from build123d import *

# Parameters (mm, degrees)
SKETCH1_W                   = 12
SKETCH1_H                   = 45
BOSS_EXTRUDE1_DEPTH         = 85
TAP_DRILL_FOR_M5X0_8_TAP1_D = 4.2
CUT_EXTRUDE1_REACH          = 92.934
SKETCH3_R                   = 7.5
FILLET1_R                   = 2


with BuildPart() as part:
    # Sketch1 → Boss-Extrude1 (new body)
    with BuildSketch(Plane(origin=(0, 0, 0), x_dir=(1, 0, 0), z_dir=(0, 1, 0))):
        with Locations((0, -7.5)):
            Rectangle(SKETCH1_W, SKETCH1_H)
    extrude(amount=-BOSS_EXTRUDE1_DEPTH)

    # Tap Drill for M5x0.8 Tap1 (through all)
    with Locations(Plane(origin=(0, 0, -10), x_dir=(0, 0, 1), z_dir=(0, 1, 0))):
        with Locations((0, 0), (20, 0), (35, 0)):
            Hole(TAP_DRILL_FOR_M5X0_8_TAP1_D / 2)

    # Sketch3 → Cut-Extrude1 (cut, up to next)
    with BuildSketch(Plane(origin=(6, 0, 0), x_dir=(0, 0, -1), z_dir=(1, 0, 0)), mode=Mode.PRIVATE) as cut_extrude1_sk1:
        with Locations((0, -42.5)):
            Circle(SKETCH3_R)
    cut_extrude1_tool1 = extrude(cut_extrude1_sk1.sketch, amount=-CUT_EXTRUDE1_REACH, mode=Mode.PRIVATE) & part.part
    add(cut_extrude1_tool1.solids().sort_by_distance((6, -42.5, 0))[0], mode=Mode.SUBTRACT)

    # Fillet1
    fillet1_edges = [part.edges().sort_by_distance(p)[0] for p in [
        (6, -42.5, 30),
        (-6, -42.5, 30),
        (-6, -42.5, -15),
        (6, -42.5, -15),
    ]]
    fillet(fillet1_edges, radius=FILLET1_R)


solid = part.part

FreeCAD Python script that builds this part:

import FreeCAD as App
import Part
import Sketcher
from FreeCAD import Vector
Q = App.Units.Quantity


def edges_at(feature, points):
    """Names of the edges that pass closest to the given points."""
    edges = feature.Shape.Edges
    near = lambda p: min(range(len(edges)), key=lambda i: edges[i].distToShape(Part.Vertex(*p))[0])
    return sorted({f"Edge{near(p) + 1}" for p in points})


def add_polygon(sketch, points):
    """Adds a closed chain of lines whose ends are joined by coincident constraints."""
    first, n = sketch.GeometryCount, len(points)
    for a, b in zip(points, points[1:] + points[:1]):
        sketch.addGeometry(Part.LineSegment(App.Vector(*a, 0), App.Vector(*b, 0)), False)
    for i in range(n):
        sketch.addConstraint(Sketcher.Constraint("Coincident", first + i, 2, first + (i + 1) % n, 1))

doc = App.newDocument("Part")
body = doc.addObject("PartDesign::Body", "Body")

sketch1 = body.newObject("Sketcher::SketchObject", "Sketch")
sketch1.AttachmentSupport = (doc.getObject("XZ_Plane"), [""])
sketch1.MapMode = "FlatFace"
add_polygon(sketch1, [(-6, -15), (-6, 30), (6, 30), (6, -15)])
sketch1.addConstraint([
    Sketcher.Constraint("Vertical", 0),
    Sketcher.Constraint("Horizontal", 1),
    Sketcher.Constraint("Vertical", 2),
    Sketcher.Constraint("Horizontal", 3),
    Sketcher.Constraint("DistanceX", 1, 1, 1, 2, Q("12 mm")),
    Sketcher.Constraint("DistanceY", 0, 1, 0, 2, Q("45 mm")),
    Sketcher.Constraint("DistanceX", 0, 2, -1, 1, Q("6 mm")),
    Sketcher.Constraint("DistanceY", -1, 1, 0, 2, Q("30 mm")),
])
pad1 = body.newObject("PartDesign::Pad", "Pad")
pad1.Profile = sketch1
pad1.Length = 85

sketch2 = body.newObject("Sketcher::SketchObject", "Sketch001")
sketch2.AttachmentSupport = (doc.getObject("XZ_Plane"), [""])
sketch2.MapMode = "FlatFace"
sketch2.addGeometry([
    Part.Circle(Vector(0, -10, 0), Vector(0, 0, 1), 2.1),
    Part.Circle(Vector(0, 10, 0), Vector(0, 0, 1), 2.1),
    Part.Circle(Vector(0, 25, 0), Vector(0, 0, 1), 2.1),
], False)
sketch2.addConstraint([
    Sketcher.Constraint("Equal", 0, 1),
    Sketcher.Constraint("Equal", 1, 2),
    Sketcher.Constraint("Symmetric", 0, 3, 1, 3, -1, 1),
    Sketcher.Constraint("PointOnObject", 0, 3, -2),
    Sketcher.Constraint("PointOnObject", 2, 3, -2),
    Sketcher.Constraint("Diameter", 0, Q("4.2 mm")),
    Sketcher.Constraint("DistanceY", 0, 3, -1, 1, Q("10 mm")),
    Sketcher.Constraint("DistanceY", -1, 1, 2, 3, Q("25 mm")),
])
doc.recompute()
hole = body.newObject("PartDesign::Hole", "Hole")
hole.Profile = sketch2
hole.ThreadType = "None"
hole.Diameter = 4.2
hole.DepthType = "ThroughAll"
hole.Reversed = True

sketch3 = body.newObject("Sketcher::SketchObject", "Sketch002")
sketch3.AttachmentSupport = (doc.getObject("YZ_Plane"), [""])
sketch3.MapMode = "FlatFace"
sketch3.AttachmentOffset = App.Placement(Vector(0, 0, 6), App.Rotation())
sketch3.addGeometry(Part.Circle(Vector(-42, 0, 0), Vector(0, 0, 1), 8), False)
sketch3.addConstraint([
    Sketcher.Constraint("PointOnObject", 0, 3, -1),
    Sketcher.Constraint("Diameter", 0, Q("15 mm")),
    Sketcher.Constraint("DistanceX", 0, 3, -1, 1, Q("42.5 mm")),
])
pocket1 = body.newObject("PartDesign::Pocket", "Pocket")
pocket1.Profile = sketch3
pocket1.Type = "UpToFirst"
doc.recompute()

fillet = body.newObject("PartDesign::Fillet", "Fillet")
fillet.Base = (pocket1, edges_at(pocket1, [
    (6, -42.5, 30),
    (-6, -42.5, 30),
    (-6, -42.5, -15),
    (6, -42.5, -15),
]))
fillet.Radius = 2

doc.recompute()
